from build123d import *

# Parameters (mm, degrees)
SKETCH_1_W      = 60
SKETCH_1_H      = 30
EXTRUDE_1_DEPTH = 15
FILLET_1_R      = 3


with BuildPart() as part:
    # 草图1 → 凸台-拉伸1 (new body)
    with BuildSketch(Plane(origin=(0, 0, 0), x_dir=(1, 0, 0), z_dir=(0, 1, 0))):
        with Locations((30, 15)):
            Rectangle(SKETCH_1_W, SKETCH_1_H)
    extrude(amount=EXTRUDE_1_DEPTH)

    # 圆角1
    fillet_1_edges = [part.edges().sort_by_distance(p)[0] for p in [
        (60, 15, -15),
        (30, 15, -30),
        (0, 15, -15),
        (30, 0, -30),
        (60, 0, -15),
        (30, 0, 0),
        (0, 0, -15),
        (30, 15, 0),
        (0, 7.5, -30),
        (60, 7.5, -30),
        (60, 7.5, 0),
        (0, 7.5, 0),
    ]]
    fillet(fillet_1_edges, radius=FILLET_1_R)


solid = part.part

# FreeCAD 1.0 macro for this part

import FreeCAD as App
import Part
import Sketcher

V = App.Vector


def add_polygon(sketch, points):
    """Adds a closed chain of lines whose ends are joined by coincident constraints."""
    first, n = sketch.GeometryCount, len(points)
    for a, b in zip(points, points[1:] + points[:1]):
        sketch.addGeometry(Part.LineSegment(App.Vector(*a, 0), App.Vector(*b, 0)), False)
    for i in range(n):
        sketch.addConstraint(Sketcher.Constraint("Coincident", first + i, 2, first + (i + 1) % n, 1))

doc = App.newDocument("Part")
body = doc.addObject("PartDesign::Body", "Body")

sketch1 = body.newObject("Sketcher::SketchObject", "Sketch")
sketch1.AttachmentSupport = (doc.getObject("XZ_Plane"), [""])
sketch1.MapMode = "FlatFace"
add_polygon(sketch1, [(0, -30), (0, 0), (60, 0), (60, -30)])
sketch1.addConstraint([
    Sketcher.Constraint("Vertical", 0),
    Sketcher.Constraint("Horizontal", 1),
    Sketcher.Constraint("Vertical", 2),
    Sketcher.Constraint("Horizontal", 3),
    Sketcher.Constraint("Coincident", 0, 2, -1, 1),
    Sketcher.Constraint("DistanceX", 1, 1, 1, 2, 60.0),
    Sketcher.Constraint("DistanceY", 0, 1, 0, 2, 30.0),
])
pad1 = body.newObject("PartDesign::Pad", "Pad")
pad1.Profile = sketch1
pad1.Length = 15
pad1.Reversed = True
doc.recompute()

fillet = body.newObject("PartDesign::Fillet", "Fillet")
fillet.Base = (pad1, ["Edge1"])
fillet.UseAllEdges = True
fillet.Radius = 3

doc.recompute()
